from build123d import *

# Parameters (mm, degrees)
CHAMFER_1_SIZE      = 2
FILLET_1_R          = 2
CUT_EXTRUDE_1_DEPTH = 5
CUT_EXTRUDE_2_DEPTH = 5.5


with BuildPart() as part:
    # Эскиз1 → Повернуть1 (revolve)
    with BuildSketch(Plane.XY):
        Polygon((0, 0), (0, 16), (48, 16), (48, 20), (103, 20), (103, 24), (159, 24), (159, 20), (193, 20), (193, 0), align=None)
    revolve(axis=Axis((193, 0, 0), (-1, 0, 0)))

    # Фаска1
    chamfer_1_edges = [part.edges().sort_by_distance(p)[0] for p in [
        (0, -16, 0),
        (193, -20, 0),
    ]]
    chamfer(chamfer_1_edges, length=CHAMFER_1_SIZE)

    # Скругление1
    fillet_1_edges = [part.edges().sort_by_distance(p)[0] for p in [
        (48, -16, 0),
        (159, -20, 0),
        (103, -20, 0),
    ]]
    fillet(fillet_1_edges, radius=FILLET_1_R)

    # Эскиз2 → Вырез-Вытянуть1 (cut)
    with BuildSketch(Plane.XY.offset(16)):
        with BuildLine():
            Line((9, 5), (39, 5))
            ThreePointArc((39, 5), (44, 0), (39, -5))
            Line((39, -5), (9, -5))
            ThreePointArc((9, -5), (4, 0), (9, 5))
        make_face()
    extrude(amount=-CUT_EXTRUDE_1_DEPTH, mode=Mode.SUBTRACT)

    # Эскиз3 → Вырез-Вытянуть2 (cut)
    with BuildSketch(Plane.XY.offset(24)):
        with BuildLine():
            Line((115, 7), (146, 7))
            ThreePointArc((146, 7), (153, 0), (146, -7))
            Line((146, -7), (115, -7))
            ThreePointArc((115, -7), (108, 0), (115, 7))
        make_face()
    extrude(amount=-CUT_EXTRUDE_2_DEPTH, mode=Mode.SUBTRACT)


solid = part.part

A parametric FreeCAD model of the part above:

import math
import FreeCAD as App
import Part
import Sketcher
Q = App.Units.Quantity


def edges_at(feature, points):
    """Names of the edges that pass closest to the given points."""
    edges = feature.Shape.Edges
    near = lambda p: min(range(len(edges)), key=lambda i: edges[i].distToShape(Part.Vertex(*p))[0])
    return sorted({f"Edge{near(p) + 1}" for p in points})

doc = App.newDocument("Part")
params = doc.addObject("Spreadsheet::Sheet", "Params")
for row, (alias, value) in enumerate([
    ("sketch1_width", "193 mm"),
    ("sketch1_width2", "34 mm"),
    ("sketch1_width3", "56 mm"),
    ("sketch1_width4", "55 mm"),
    ("sketch1_height", "16 mm"),
    ("revolution_angle", "360 deg"),
    ("chamfer_size", "2 mm"),
    ("fillet_radius", "2 mm"),
    ("sketch2_radius", "5 mm"),
    ("sketch2_width", "30 mm"),
    ("pocket1_length", "5 mm"),
    ("sketch3_radius", "7 mm"),
    ("sketch3_width", "31 mm"),
    ("pocket2_length", "5.5 mm"),
], start=1):
    params.set(f"A{row}", alias)
    params.set(f"B{row}", "=" + value)
    params.setAlias(f"B{row}", alias)

body = doc.addObject("PartDesign::Body", "Body")

# Sketch on XY plane
sketch1 = doc.addObject("Sketcher::SketchObject", "Sketch")
body.addObject(sketch1)
sketch1.AttachmentSupport = (doc.XY_Plane, [""])
sketch1.MapMode = "FlatFace"
sketch1.addGeometry(Part.LineSegment(App.Vector(0, 16, 0), App.Vector(0, 0, 0)), False)
sketch1.addGeometry(Part.LineSegment(App.Vector(0, 0, 0), App.Vector(193, 0, 0)), False)
sketch1.addGeometry(Part.LineSegment(App.Vector(193, 0, 0), App.Vector(193, 20, 0)), False)
sketch1.addGeometry(Part.LineSegment(App.Vector(193, 20, 0), App.Vector(159, 20, 0)), False)
sketch1.addGeometry(Part.LineSegment(App.Vector(159, 20, 0), App.Vector(159, 24, 0)), False)
sketch1.addGeometry(Part.LineSegment(App.Vector(159, 24, 0), App.Vector(103, 24, 0)), False)
sketch1.addGeometry(Part.LineSegment(App.Vector(103, 24, 0), App.Vector(103, 20, 0)), False)
sketch1.addGeometry(Part.LineSegment(App.Vector(103, 20, 0), App.Vector(48, 20, 0)), False)
sketch1.addGeometry(Part.LineSegment(App.Vector(48, 20, 0), App.Vector(48, 16, 0)), False)
sketch1.addGeometry(Part.LineSegment(App.Vector(48, 16, 0), App.Vector(0, 16, 0)), False)
sketch1.addConstraint(Sketcher.Constraint("Coincident", 0, 2, 1, 1))
sketch1.addConstraint(Sketcher.Constraint("Coincident", 1, 2, 2, 1))
sketch1.addConstraint(Sketcher.Constraint("Coincident", 2, 2, 3, 1))
sketch1.addConstraint(Sketcher.Constraint("Coincident", 3, 2, 4, 1))
sketch1.addConstraint(Sketcher.Constraint("Coincident", 4, 2, 5, 1))
sketch1.addConstraint(Sketcher.Constraint("Coincident", 5, 2, 6, 1))
sketch1.addConstraint(Sketcher.Constraint("Coincident", 6, 2, 7, 1))
sketch1.addConstraint(Sketcher.Constraint("Coincident", 7, 2, 8, 1))
sketch1.addConstraint(Sketcher.Constraint("Coincident", 8, 2, 9, 1))
sketch1.addConstraint(Sketcher.Constraint("Coincident", 9, 2, 0, 1))
sketch1.addConstraint(Sketcher.Constraint("Vertical", 0))
sketch1.addConstraint(Sketcher.Constraint("Horizontal", 1))
sketch1.addConstraint(Sketcher.Constraint("Vertical", 2))
sketch1.addConstraint(Sketcher.Constraint("Horizontal", 3))
sketch1.addConstraint(Sketcher.Constraint("Vertical", 4))
sketch1.addConstraint(Sketcher.Constraint("Horizontal", 5))
sketch1.addConstraint(Sketcher.Constraint("Vertical", 6))
sketch1.addConstraint(Sketcher.Constraint("Horizontal", 7))
sketch1.addConstraint(Sketcher.Constraint("Vertical", 8))
sketch1.addConstraint(Sketcher.Constraint("Horizontal", 9))
sketch1.addConstraint(Sketcher.Constraint("Coincident", 0, 2, -1, 1))
sketch1.addConstraint(Sketcher.Constraint("Horizontal", 3, 2, 6, 2))
sketch1.addConstraint(Sketcher.Constraint("Equal", 6, 8))
sketch1.addConstraint(Sketcher.Constraint("DistanceX", 1, 1, 1, 2, Q("193 mm")))
sketch1.addConstraint(Sketcher.Constraint("DistanceX", 3, 2, 3, 1, Q("34 mm")))
sketch1.addConstraint(Sketcher.Constraint("DistanceX", 5, 2, 5, 1, Q("56 mm")))
sketch1.addConstraint(Sketcher.Constraint("DistanceX", 7, 2, 7, 1, Q("55 mm")))
sketch1.addConstraint(Sketcher.Constraint("DistanceY", 0, 2, 0, 1, Q("16 mm")))
sketch1.addConstraint(Sketcher.Constraint("DistanceY", 2, 1, 2, 2, Q("20 mm")))
sketch1.setExpression("Constraints[23]", "Params.sketch1_width")
sketch1.setExpression("Constraints[24]", "Params.sketch1_width2")
sketch1.setExpression("Constraints[25]", "Params.sketch1_width3")
sketch1.setExpression("Constraints[26]", "Params.sketch1_width4")
sketch1.setExpression("Constraints[27]", "Params.sketch1_height")
revolution = doc.addObject("PartDesign::Revolution", "Revolution")
body.addObject(revolution)
revolution.Profile = sketch1
revolution.ReferenceAxis = (sketch1, ["H_Axis"])
revolution.setExpression("Angle", "Params.revolution_angle")
doc.recompute()

chamfer = doc.addObject("PartDesign::Chamfer", "Chamfer")
body.addObject(chamfer)
chamfer.Base = (revolution, edges_at(revolution, [(0, -16, 0), (193, -20, 0)]))
chamfer.setExpression("Size", "Params.chamfer_size")
doc.recompute()

fillet = doc.addObject("PartDesign::Fillet", "Fillet")
body.addObject(fillet)
fillet.Base = (chamfer, edges_at(chamfer, [(48, -16, 0), (159, -20, 0), (103, -20, 0)]))
fillet.setExpression("Radius", "Params.fillet_radius")

# Sketch on XY plane
sketch2 = doc.addObject("Sketcher::SketchObject", "Sketch001")
body.addObject(sketch2)
sketch2.AttachmentSupport = (doc.XY_Plane, [""])
sketch2.MapMode = "FlatFace"
sketch2.AttachmentOffset = App.Placement(App.Vector(0, 0, 16), App.Rotation())
sketch2.addGeometry(Part.LineSegment(App.Vector(39, 5, 0), App.Vector(9, 5, 0)), False)
sketch2.addGeometry(Part.ArcOfCircle(Part.Circle(App.Vector(9, 0, 0), App.Vector(0, 0, 1), 5), math.radians(90), math.radians(270)), False)
sketch2.addGeometry(Part.LineSegment(App.Vector(9, -5, 0), App.Vector(39, -5, 0)), False)
sketch2.addGeometry(Part.ArcOfCircle(Part.Circle(App.Vector(39, 0, 0), App.Vector(0, 0, 1), 5), math.radians(-90), math.radians(90)), False)
sketch2.addConstraint(Sketcher.Constraint("Tangent", 0, 2, 1, 1))
sketch2.addConstraint(Sketcher.Constraint("Tangent", 1, 2, 2, 1))
sketch2.addConstraint(Sketcher.Constraint("Tangent", 2, 2, 3, 1))
sketch2.addConstraint(Sketcher.Constraint("Tangent", 3, 2, 0, 1))
sketch2.addConstraint(Sketcher.Constraint("Horizontal", 0))
sketch2.addConstraint(Sketcher.Constraint("Horizontal", 2))
sketch2.addConstraint(Sketcher.Constraint("PointOnObject", 1, 3, -1))
sketch2.addConstraint(Sketcher.Constraint("Radius", 1, Q("5 mm")))
sketch2.addConstraint(Sketcher.Constraint("DistanceX", 0, 2, 0, 1, Q("30 mm")))
sketch2.addConstraint(Sketcher.Constraint("DistanceX", -1, 1, 1, 3, Q("9 mm")))
sketch2.setExpression("Constraints[7]", "Params.sketch2_radius")
sketch2.setExpression("Constraints[8]", "Params.sketch2_width")
pocket1 = doc.addObject("PartDesign::Pocket", "Pocket")
body.addObject(pocket1)
pocket1.Profile = sketch2
pocket1.setExpression("Length", "Params.pocket1_length")

# Sketch on XY plane
sketch3 = doc.addObject("Sketcher::SketchObject", "Sketch002")
body.addObject(sketch3)
sketch3.AttachmentSupport = (doc.XY_Plane, [""])
sketch3.MapMode = "FlatFace"
sketch3.AttachmentOffset = App.Placement(App.Vector(0, 0, 24), App.Rotation())
sketch3.addGeometry(Part.LineSegment(App.Vector(146, 7, 0), App.Vector(115, 7, 0)), False)
sketch3.addGeometry(Part.ArcOfCircle(Part.Circle(App.Vector(115, 0, 0), App.Vector(0, 0, 1), 7), math.radians(90), math.radians(270)), False)
sketch3.addGeometry(Part.LineSegment(App.Vector(115, -7, 0), App.Vector(146, -7, 0)), False)
sketch3.addGeometry(Part.ArcOfCircle(Part.Circle(App.Vector(146, 0, 0), App.Vector(0, 0, 1), 7), math.radians(-90), math.radians(90)), False)
sketch3.addConstraint(Sketcher.Constraint("Tangent", 0, 2, 1, 1))
sketch3.addConstraint(Sketcher.Constraint("Tangent", 1, 2, 2, 1))
sketch3.addConstraint(Sketcher.Constraint("Tangent", 2, 2, 3, 1))
sketch3.addConstraint(Sketcher.Constraint("Tangent", 3, 2, 0, 1))
sketch3.addConstraint(Sketcher.Constraint("Horizontal", 0))
sketch3.addConstraint(Sketcher.Constraint("Horizontal", 2))
sketch3.addConstraint(Sketcher.Constraint("PointOnObject", 1, 3, -1))
sketch3.addConstraint(Sketcher.Constraint("Radius", 1, Q("7 mm")))
sketch3.addConstraint(Sketcher.Constraint("DistanceX", 0, 2, 0, 1, Q("31 mm")))
sketch3.addConstraint(Sketcher.Constraint("DistanceX", -1, 1, 1, 3, Q("115 mm")))
sketch3.setExpression("Constraints[7]", "Params.sketch3_radius")
sketch3.setExpression("Constraints[8]", "Params.sketch3_width")
pocket2 = doc.addObject("PartDesign::Pocket", "Pocket001")
body.addObject(pocket2)
pocket2.Profile = sketch3
pocket2.setExpression("Length", "Params.pocket2_length")

doc.recompute()
